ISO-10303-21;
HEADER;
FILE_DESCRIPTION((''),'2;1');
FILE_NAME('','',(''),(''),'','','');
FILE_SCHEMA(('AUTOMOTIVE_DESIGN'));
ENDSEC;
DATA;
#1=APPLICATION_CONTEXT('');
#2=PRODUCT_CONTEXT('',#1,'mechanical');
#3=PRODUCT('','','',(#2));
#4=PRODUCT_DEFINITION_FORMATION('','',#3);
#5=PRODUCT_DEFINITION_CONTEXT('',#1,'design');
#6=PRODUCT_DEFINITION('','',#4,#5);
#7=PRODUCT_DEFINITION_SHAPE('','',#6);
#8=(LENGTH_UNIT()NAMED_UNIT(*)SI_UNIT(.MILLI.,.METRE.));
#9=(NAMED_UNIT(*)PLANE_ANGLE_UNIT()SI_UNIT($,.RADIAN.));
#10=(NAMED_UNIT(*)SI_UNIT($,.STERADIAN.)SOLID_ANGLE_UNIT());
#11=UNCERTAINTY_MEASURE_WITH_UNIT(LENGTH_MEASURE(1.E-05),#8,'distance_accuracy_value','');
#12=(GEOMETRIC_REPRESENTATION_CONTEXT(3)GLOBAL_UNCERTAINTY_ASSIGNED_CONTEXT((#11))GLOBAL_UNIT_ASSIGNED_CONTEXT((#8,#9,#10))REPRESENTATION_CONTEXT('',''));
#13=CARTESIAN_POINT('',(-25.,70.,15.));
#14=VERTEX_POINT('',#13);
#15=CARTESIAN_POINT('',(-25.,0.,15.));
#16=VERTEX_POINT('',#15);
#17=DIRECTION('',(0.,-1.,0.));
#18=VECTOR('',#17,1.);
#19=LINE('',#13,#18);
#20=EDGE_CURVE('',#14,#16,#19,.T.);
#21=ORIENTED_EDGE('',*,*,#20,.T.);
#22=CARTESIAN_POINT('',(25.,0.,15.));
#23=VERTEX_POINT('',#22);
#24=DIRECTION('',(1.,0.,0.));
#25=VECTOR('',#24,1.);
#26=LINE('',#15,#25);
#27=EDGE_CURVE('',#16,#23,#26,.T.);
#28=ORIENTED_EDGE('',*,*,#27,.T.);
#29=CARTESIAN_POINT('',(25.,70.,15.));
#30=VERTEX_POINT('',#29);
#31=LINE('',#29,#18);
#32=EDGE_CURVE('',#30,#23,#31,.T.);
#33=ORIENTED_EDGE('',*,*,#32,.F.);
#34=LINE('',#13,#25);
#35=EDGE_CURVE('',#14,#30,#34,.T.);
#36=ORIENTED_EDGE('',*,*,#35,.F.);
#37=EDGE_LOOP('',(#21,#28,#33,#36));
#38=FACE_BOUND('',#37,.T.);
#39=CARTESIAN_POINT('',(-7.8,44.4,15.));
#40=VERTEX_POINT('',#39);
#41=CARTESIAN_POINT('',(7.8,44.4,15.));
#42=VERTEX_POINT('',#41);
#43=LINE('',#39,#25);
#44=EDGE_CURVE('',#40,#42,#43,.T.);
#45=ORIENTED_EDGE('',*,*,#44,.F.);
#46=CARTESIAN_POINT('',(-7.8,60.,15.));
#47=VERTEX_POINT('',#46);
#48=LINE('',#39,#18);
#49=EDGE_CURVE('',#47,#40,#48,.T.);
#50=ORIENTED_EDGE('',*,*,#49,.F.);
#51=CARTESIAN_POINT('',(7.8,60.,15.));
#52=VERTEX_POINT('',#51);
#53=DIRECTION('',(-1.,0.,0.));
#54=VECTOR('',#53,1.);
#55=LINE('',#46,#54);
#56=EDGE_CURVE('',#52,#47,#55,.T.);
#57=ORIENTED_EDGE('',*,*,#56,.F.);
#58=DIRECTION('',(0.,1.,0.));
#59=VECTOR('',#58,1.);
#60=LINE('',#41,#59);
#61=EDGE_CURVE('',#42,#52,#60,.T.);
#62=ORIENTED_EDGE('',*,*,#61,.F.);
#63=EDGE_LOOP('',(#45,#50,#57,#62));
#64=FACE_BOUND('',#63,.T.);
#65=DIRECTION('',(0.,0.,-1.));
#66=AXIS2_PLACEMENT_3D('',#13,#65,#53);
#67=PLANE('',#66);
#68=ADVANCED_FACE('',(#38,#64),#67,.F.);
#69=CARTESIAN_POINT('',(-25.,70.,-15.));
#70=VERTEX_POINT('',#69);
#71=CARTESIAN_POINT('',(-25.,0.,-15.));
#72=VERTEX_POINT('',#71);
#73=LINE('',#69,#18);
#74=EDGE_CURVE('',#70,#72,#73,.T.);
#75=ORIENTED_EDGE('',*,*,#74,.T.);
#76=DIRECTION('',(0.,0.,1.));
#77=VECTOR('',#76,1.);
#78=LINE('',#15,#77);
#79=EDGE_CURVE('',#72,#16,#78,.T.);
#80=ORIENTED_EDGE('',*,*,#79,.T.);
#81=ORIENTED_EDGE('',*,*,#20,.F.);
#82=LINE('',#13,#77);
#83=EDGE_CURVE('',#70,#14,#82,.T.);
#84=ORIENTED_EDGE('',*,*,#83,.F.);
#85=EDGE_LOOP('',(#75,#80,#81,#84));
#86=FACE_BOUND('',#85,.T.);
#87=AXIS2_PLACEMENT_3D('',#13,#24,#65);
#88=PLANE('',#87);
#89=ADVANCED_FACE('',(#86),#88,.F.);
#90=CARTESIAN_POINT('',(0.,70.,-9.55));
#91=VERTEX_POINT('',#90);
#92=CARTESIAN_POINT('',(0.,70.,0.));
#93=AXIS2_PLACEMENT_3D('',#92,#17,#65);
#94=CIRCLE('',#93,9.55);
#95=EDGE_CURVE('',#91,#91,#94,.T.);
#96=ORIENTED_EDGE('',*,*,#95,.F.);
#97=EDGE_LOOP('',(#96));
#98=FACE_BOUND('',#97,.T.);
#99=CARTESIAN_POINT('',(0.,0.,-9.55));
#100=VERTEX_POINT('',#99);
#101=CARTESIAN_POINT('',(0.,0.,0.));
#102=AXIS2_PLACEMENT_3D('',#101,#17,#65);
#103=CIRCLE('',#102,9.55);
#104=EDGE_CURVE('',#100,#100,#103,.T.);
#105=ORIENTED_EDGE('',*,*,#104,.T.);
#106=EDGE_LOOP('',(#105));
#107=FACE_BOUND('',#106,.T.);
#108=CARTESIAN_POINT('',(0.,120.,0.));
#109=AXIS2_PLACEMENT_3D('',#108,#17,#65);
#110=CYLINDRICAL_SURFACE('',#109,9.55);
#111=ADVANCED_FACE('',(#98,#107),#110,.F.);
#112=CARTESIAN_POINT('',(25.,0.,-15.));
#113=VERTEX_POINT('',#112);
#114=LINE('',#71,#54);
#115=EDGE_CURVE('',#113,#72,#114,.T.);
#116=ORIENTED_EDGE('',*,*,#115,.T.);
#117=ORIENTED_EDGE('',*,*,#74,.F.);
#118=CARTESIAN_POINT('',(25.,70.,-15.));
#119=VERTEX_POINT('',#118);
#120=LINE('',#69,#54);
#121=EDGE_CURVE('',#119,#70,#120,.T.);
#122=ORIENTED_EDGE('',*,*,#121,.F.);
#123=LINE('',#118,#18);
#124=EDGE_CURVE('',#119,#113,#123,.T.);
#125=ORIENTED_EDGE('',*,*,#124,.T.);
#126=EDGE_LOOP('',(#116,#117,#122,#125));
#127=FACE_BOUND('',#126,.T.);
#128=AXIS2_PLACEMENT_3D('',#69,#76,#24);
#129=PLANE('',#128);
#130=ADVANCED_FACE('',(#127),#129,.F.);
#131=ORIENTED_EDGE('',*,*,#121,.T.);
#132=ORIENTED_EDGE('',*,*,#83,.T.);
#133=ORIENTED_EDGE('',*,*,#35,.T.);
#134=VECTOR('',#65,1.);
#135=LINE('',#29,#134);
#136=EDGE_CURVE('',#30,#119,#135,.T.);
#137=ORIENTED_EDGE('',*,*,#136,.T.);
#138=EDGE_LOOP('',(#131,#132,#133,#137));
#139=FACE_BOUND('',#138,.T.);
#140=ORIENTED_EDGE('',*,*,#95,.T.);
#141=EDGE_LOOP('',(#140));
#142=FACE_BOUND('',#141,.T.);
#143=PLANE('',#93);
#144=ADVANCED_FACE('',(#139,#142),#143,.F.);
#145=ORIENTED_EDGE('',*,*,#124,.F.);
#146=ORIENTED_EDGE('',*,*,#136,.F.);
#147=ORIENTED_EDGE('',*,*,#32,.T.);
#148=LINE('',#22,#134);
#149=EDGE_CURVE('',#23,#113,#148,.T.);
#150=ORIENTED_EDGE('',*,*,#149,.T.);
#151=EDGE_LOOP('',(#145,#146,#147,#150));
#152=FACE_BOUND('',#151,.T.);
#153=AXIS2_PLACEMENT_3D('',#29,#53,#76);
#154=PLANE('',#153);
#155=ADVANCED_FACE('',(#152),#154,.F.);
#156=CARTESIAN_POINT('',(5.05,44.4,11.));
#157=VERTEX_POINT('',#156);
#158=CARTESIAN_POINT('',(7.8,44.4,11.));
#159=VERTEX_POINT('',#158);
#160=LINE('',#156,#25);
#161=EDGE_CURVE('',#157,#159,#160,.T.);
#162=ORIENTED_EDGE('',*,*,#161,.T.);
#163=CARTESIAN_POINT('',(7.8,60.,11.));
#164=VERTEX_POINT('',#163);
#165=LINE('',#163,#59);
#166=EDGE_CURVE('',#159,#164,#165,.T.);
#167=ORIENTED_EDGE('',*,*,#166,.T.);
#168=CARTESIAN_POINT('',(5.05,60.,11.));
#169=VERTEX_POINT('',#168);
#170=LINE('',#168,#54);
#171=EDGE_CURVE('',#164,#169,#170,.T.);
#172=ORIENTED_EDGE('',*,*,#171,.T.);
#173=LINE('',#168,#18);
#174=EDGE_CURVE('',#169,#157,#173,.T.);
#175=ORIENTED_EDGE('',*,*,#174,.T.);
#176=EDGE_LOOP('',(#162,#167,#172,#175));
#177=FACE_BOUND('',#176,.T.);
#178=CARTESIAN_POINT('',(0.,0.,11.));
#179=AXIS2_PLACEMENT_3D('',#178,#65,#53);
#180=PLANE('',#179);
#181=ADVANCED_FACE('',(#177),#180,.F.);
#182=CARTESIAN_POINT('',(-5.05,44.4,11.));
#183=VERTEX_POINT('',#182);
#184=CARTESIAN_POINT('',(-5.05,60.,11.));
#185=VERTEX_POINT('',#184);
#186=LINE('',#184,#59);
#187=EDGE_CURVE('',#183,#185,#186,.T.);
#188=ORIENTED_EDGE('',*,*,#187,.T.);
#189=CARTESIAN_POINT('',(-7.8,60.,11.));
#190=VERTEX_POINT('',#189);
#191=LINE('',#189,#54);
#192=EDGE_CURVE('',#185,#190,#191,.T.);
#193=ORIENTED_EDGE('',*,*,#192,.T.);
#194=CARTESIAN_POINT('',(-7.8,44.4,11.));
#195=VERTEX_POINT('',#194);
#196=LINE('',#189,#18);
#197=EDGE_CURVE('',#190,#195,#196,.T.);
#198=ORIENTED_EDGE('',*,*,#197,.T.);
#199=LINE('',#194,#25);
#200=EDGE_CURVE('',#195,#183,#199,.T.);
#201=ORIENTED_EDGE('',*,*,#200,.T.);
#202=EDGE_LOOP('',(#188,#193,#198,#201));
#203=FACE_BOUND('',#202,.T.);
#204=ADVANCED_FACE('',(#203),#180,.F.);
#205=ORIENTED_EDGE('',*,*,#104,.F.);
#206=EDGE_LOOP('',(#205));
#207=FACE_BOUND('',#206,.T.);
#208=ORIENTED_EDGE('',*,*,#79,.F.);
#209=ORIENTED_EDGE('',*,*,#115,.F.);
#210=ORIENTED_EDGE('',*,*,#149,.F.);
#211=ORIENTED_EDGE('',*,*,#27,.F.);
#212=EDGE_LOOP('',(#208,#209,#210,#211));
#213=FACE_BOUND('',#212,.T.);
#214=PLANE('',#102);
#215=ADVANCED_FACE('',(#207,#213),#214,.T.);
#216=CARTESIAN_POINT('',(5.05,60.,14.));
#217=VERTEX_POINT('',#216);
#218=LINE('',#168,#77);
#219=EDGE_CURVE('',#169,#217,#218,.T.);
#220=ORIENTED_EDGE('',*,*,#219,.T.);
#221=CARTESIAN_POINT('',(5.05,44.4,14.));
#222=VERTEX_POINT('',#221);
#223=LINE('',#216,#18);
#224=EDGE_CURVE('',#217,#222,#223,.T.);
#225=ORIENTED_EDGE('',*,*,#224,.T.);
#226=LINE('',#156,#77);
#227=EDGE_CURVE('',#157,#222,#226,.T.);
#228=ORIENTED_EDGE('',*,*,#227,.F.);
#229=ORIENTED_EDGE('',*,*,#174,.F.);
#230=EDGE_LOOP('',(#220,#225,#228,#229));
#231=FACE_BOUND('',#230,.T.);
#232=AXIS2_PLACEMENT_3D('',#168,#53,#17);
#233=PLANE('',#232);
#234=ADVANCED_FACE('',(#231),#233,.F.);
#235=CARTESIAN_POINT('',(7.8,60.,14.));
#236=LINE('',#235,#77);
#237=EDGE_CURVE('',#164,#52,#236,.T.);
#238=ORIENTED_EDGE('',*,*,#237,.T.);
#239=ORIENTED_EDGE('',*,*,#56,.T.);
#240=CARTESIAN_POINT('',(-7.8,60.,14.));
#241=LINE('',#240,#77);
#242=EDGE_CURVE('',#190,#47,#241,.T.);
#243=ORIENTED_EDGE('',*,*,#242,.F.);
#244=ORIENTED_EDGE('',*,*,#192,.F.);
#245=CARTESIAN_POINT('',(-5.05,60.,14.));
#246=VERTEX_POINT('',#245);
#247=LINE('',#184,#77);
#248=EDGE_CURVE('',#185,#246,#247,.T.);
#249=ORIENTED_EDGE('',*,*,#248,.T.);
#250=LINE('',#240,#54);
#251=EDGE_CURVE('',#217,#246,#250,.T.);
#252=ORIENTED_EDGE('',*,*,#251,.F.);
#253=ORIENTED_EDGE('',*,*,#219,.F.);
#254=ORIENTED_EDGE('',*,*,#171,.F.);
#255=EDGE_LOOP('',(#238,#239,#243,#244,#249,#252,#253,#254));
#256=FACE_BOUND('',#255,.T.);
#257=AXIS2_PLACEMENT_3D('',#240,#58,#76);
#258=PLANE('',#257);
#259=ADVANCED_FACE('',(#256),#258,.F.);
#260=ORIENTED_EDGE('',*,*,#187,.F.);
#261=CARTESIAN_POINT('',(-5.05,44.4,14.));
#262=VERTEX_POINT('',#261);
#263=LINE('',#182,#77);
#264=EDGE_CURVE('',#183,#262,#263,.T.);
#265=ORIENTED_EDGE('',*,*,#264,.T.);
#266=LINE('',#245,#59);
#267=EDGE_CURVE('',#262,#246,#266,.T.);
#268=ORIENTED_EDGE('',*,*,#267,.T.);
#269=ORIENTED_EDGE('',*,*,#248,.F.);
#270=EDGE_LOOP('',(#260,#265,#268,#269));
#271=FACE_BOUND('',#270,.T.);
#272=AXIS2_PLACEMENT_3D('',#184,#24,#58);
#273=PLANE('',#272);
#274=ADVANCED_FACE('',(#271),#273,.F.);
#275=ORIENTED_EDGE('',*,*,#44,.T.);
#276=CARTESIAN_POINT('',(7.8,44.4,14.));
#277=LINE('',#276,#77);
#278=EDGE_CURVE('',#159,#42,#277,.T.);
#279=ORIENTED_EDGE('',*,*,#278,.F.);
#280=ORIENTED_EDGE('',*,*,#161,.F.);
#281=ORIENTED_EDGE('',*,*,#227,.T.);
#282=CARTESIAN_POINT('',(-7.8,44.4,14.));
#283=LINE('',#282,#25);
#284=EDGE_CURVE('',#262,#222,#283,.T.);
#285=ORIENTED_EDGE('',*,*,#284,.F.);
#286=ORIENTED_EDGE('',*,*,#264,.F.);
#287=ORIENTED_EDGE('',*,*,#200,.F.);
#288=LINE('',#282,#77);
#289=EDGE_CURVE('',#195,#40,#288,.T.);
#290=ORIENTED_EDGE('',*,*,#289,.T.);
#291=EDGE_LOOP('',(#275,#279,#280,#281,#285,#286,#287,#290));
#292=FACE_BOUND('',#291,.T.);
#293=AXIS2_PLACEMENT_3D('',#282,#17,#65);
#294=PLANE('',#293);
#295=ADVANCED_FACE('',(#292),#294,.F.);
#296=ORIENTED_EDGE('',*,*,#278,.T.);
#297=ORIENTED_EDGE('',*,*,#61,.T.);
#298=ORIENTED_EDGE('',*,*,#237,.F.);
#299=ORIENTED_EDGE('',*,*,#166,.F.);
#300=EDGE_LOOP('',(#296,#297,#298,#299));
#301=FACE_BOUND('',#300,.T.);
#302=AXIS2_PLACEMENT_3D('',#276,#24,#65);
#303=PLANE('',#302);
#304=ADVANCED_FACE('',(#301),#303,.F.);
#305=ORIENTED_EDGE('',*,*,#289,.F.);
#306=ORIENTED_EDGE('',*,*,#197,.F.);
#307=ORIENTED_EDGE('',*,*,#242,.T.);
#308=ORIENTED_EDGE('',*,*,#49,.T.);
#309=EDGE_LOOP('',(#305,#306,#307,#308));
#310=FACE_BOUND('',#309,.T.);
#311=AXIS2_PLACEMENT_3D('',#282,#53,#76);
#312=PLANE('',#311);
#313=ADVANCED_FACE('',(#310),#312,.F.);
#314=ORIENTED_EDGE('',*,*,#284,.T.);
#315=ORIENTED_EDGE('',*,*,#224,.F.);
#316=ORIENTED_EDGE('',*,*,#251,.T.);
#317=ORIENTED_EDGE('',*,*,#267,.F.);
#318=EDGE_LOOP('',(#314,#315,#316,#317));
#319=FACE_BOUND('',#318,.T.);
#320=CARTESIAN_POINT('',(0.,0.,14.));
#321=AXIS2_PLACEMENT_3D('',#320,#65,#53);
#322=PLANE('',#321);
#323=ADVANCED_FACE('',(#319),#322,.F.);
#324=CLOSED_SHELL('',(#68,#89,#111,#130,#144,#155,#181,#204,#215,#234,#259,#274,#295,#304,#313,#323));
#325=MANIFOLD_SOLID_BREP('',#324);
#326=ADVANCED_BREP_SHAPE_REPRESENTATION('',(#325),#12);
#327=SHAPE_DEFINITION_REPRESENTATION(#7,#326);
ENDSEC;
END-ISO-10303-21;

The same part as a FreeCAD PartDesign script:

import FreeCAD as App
import Part
import Sketcher
Q = App.Units.Quantity


def add_polygon(sketch, points):
    """Adds a closed chain of lines whose ends are joined by coincident constraints."""
    first, n = sketch.GeometryCount, len(points)
    for a, b in zip(points, points[1:] + points[:1]):
        sketch.addGeometry(Part.LineSegment(App.Vector(*a, 0), App.Vector(*b, 0)), False)
    for i in range(n):
        sketch.addConstraint(Sketcher.Constraint("Coincident", first + i, 2, first + (i + 1) % n, 1))

doc = App.newDocument("Part")
body = doc.addObject("PartDesign::Body", "Body")

# Sketch on XZ plane
sketch1 = doc.addObject("Sketcher::SketchObject", "Sketch")
body.addObject(sketch1)
sketch1.AttachmentSupport = (doc.XZ_Plane, [""])
sketch1.MapMode = "FlatFace"
add_polygon(sketch1, [(-25, -15), (-25, 15), (25, 15), (25, -15)])  # lines 0-3
sketch1.addConstraint([
    Sketcher.Constraint("Vertical", 0),
    Sketcher.Constraint("Horizontal", 1),
    Sketcher.Constraint("Vertical", 2),
    Sketcher.Constraint("Horizontal", 3),
    Sketcher.Constraint("Symmetric", 0, 2, 2, 2, -1, 1),
    Sketcher.Constraint("DistanceX", 1, 1, 1, 2, Q("50 mm")),
    Sketcher.Constraint("DistanceY", 0, 1, 0, 2, Q("30 mm")),
])
pad1 = doc.addObject("PartDesign::Pad", "Pad")
body.addObject(pad1)
pad1.Profile = sketch1
pad1.Length = 70
pad1.Reversed = True

# Sketch on XZ plane
sketch2 = doc.addObject("Sketcher::SketchObject", "Sketch001")
body.addObject(sketch2)
sketch2.AttachmentSupport = (doc.XZ_Plane, [""])
sketch2.MapMode = "FlatFace"
sketch2.addGeometry(Part.Circle(App.Vector(0, 0, 0), App.Vector(0, 0, 1), 10), False)
sketch2.addConstraint([
    Sketcher.Constraint("Coincident", 0, 3, -1, 1),
    Sketcher.Constraint("Diameter", 0, Q("19.1 mm")),
])
pocket1 = doc.addObject("PartDesign::Pocket", "Pocket")
body.addObject(pocket1)
pocket1.Profile = sketch2
pocket1.Length = 120

# Sketch on XY plane
sketch3 = doc.addObject("Sketcher::SketchObject", "Sketch002")
body.addObject(sketch3)
sketch3.AttachmentSupport = (doc.XY_Plane, [""])
sketch3.MapMode = "FlatFace"
sketch3.AttachmentOffset = App.Placement(App.Vector(0, 0, 15), App.Rotation())
add_polygon(sketch3, [(-8, 60), (-8, 44), (8, 44), (8, 60)])  # lines 0-3
sketch3.addConstraint([
    Sketcher.Constraint("Vertical", 0),
    Sketcher.Constraint("Horizontal", 1),
    Sketcher.Constraint("Vertical", 2),
    Sketcher.Constraint("Horizontal", 3),
    Sketcher.Constraint("Equal", 3, 0),
    Sketcher.Constraint("DistanceX", 1, 1, 1, 2, Q("15.6 mm")),
    Sketcher.Constraint("DistanceY", -1, 1, 2, 2, Q("60 mm")),
    Sketcher.Constraint("DistanceX", 0, 2, -1, 1, Q("7.8 mm")),
])
pocket2 = doc.addObject("PartDesign::Pocket", "Pocket001")
body.addObject(pocket2)
pocket2.Profile = sketch3
pocket2.Length = 1

# Sketch on XY plane
sketch4 = doc.addObject("Sketcher::SketchObject", "Sketch003")
body.addObject(sketch4)
sketch4.AttachmentSupport = (doc.XY_Plane, [""])
sketch4.MapMode = "FlatFace"
sketch4.AttachmentOffset = App.Placement(App.Vector(0, 0, 14), App.Rotation())
add_polygon(sketch4, [(-7.8, 60), (-7.8, 44.4), (-5, 44.4), (-5, 60)])  # lines 0-3
add_polygon(sketch4, [(5, 60), (5, 44.4), (7.8, 44.4), (7.8, 60)])  # lines 4-7
sketch4.addConstraint([
    Sketcher.Constraint("Vertical", 0),
    Sketcher.Constraint("Horizontal", 1),
    Sketcher.Constraint("Vertical", 2),
    Sketcher.Constraint("Horizontal", 3),
    Sketcher.Constraint("Vertical", 4),
    Sketcher.Constraint("Horizontal", 5),
    Sketcher.Constraint("Vertical", 6),
    Sketcher.Constraint("Horizontal", 7),
    Sketcher.Constraint("Symmetric", 1, 2, 4, 2, -2),
    Sketcher.Constraint("Symmetric", 3, 2, 6, 2, -2),
    Sketcher.Constraint("DistanceY", 0, 2, 0, 1, Q("15.6 mm")),
    Sketcher.Constraint("DistanceY", -1, 1, 2, 2, Q("60 mm")),
    Sketcher.Constraint("DistanceX", 1, 1, 1, 2, Q("2.75 mm")),
    Sketcher.Constraint("DistanceX", 0, 2, -1, 1, Q("7.8 mm")),
])
pocket3 = doc.addObject("PartDesign::Pocket", "Pocket002")
body.addObject(pocket3)
pocket3.Profile = sketch4
pocket3.Length = 3

doc.recompute()
